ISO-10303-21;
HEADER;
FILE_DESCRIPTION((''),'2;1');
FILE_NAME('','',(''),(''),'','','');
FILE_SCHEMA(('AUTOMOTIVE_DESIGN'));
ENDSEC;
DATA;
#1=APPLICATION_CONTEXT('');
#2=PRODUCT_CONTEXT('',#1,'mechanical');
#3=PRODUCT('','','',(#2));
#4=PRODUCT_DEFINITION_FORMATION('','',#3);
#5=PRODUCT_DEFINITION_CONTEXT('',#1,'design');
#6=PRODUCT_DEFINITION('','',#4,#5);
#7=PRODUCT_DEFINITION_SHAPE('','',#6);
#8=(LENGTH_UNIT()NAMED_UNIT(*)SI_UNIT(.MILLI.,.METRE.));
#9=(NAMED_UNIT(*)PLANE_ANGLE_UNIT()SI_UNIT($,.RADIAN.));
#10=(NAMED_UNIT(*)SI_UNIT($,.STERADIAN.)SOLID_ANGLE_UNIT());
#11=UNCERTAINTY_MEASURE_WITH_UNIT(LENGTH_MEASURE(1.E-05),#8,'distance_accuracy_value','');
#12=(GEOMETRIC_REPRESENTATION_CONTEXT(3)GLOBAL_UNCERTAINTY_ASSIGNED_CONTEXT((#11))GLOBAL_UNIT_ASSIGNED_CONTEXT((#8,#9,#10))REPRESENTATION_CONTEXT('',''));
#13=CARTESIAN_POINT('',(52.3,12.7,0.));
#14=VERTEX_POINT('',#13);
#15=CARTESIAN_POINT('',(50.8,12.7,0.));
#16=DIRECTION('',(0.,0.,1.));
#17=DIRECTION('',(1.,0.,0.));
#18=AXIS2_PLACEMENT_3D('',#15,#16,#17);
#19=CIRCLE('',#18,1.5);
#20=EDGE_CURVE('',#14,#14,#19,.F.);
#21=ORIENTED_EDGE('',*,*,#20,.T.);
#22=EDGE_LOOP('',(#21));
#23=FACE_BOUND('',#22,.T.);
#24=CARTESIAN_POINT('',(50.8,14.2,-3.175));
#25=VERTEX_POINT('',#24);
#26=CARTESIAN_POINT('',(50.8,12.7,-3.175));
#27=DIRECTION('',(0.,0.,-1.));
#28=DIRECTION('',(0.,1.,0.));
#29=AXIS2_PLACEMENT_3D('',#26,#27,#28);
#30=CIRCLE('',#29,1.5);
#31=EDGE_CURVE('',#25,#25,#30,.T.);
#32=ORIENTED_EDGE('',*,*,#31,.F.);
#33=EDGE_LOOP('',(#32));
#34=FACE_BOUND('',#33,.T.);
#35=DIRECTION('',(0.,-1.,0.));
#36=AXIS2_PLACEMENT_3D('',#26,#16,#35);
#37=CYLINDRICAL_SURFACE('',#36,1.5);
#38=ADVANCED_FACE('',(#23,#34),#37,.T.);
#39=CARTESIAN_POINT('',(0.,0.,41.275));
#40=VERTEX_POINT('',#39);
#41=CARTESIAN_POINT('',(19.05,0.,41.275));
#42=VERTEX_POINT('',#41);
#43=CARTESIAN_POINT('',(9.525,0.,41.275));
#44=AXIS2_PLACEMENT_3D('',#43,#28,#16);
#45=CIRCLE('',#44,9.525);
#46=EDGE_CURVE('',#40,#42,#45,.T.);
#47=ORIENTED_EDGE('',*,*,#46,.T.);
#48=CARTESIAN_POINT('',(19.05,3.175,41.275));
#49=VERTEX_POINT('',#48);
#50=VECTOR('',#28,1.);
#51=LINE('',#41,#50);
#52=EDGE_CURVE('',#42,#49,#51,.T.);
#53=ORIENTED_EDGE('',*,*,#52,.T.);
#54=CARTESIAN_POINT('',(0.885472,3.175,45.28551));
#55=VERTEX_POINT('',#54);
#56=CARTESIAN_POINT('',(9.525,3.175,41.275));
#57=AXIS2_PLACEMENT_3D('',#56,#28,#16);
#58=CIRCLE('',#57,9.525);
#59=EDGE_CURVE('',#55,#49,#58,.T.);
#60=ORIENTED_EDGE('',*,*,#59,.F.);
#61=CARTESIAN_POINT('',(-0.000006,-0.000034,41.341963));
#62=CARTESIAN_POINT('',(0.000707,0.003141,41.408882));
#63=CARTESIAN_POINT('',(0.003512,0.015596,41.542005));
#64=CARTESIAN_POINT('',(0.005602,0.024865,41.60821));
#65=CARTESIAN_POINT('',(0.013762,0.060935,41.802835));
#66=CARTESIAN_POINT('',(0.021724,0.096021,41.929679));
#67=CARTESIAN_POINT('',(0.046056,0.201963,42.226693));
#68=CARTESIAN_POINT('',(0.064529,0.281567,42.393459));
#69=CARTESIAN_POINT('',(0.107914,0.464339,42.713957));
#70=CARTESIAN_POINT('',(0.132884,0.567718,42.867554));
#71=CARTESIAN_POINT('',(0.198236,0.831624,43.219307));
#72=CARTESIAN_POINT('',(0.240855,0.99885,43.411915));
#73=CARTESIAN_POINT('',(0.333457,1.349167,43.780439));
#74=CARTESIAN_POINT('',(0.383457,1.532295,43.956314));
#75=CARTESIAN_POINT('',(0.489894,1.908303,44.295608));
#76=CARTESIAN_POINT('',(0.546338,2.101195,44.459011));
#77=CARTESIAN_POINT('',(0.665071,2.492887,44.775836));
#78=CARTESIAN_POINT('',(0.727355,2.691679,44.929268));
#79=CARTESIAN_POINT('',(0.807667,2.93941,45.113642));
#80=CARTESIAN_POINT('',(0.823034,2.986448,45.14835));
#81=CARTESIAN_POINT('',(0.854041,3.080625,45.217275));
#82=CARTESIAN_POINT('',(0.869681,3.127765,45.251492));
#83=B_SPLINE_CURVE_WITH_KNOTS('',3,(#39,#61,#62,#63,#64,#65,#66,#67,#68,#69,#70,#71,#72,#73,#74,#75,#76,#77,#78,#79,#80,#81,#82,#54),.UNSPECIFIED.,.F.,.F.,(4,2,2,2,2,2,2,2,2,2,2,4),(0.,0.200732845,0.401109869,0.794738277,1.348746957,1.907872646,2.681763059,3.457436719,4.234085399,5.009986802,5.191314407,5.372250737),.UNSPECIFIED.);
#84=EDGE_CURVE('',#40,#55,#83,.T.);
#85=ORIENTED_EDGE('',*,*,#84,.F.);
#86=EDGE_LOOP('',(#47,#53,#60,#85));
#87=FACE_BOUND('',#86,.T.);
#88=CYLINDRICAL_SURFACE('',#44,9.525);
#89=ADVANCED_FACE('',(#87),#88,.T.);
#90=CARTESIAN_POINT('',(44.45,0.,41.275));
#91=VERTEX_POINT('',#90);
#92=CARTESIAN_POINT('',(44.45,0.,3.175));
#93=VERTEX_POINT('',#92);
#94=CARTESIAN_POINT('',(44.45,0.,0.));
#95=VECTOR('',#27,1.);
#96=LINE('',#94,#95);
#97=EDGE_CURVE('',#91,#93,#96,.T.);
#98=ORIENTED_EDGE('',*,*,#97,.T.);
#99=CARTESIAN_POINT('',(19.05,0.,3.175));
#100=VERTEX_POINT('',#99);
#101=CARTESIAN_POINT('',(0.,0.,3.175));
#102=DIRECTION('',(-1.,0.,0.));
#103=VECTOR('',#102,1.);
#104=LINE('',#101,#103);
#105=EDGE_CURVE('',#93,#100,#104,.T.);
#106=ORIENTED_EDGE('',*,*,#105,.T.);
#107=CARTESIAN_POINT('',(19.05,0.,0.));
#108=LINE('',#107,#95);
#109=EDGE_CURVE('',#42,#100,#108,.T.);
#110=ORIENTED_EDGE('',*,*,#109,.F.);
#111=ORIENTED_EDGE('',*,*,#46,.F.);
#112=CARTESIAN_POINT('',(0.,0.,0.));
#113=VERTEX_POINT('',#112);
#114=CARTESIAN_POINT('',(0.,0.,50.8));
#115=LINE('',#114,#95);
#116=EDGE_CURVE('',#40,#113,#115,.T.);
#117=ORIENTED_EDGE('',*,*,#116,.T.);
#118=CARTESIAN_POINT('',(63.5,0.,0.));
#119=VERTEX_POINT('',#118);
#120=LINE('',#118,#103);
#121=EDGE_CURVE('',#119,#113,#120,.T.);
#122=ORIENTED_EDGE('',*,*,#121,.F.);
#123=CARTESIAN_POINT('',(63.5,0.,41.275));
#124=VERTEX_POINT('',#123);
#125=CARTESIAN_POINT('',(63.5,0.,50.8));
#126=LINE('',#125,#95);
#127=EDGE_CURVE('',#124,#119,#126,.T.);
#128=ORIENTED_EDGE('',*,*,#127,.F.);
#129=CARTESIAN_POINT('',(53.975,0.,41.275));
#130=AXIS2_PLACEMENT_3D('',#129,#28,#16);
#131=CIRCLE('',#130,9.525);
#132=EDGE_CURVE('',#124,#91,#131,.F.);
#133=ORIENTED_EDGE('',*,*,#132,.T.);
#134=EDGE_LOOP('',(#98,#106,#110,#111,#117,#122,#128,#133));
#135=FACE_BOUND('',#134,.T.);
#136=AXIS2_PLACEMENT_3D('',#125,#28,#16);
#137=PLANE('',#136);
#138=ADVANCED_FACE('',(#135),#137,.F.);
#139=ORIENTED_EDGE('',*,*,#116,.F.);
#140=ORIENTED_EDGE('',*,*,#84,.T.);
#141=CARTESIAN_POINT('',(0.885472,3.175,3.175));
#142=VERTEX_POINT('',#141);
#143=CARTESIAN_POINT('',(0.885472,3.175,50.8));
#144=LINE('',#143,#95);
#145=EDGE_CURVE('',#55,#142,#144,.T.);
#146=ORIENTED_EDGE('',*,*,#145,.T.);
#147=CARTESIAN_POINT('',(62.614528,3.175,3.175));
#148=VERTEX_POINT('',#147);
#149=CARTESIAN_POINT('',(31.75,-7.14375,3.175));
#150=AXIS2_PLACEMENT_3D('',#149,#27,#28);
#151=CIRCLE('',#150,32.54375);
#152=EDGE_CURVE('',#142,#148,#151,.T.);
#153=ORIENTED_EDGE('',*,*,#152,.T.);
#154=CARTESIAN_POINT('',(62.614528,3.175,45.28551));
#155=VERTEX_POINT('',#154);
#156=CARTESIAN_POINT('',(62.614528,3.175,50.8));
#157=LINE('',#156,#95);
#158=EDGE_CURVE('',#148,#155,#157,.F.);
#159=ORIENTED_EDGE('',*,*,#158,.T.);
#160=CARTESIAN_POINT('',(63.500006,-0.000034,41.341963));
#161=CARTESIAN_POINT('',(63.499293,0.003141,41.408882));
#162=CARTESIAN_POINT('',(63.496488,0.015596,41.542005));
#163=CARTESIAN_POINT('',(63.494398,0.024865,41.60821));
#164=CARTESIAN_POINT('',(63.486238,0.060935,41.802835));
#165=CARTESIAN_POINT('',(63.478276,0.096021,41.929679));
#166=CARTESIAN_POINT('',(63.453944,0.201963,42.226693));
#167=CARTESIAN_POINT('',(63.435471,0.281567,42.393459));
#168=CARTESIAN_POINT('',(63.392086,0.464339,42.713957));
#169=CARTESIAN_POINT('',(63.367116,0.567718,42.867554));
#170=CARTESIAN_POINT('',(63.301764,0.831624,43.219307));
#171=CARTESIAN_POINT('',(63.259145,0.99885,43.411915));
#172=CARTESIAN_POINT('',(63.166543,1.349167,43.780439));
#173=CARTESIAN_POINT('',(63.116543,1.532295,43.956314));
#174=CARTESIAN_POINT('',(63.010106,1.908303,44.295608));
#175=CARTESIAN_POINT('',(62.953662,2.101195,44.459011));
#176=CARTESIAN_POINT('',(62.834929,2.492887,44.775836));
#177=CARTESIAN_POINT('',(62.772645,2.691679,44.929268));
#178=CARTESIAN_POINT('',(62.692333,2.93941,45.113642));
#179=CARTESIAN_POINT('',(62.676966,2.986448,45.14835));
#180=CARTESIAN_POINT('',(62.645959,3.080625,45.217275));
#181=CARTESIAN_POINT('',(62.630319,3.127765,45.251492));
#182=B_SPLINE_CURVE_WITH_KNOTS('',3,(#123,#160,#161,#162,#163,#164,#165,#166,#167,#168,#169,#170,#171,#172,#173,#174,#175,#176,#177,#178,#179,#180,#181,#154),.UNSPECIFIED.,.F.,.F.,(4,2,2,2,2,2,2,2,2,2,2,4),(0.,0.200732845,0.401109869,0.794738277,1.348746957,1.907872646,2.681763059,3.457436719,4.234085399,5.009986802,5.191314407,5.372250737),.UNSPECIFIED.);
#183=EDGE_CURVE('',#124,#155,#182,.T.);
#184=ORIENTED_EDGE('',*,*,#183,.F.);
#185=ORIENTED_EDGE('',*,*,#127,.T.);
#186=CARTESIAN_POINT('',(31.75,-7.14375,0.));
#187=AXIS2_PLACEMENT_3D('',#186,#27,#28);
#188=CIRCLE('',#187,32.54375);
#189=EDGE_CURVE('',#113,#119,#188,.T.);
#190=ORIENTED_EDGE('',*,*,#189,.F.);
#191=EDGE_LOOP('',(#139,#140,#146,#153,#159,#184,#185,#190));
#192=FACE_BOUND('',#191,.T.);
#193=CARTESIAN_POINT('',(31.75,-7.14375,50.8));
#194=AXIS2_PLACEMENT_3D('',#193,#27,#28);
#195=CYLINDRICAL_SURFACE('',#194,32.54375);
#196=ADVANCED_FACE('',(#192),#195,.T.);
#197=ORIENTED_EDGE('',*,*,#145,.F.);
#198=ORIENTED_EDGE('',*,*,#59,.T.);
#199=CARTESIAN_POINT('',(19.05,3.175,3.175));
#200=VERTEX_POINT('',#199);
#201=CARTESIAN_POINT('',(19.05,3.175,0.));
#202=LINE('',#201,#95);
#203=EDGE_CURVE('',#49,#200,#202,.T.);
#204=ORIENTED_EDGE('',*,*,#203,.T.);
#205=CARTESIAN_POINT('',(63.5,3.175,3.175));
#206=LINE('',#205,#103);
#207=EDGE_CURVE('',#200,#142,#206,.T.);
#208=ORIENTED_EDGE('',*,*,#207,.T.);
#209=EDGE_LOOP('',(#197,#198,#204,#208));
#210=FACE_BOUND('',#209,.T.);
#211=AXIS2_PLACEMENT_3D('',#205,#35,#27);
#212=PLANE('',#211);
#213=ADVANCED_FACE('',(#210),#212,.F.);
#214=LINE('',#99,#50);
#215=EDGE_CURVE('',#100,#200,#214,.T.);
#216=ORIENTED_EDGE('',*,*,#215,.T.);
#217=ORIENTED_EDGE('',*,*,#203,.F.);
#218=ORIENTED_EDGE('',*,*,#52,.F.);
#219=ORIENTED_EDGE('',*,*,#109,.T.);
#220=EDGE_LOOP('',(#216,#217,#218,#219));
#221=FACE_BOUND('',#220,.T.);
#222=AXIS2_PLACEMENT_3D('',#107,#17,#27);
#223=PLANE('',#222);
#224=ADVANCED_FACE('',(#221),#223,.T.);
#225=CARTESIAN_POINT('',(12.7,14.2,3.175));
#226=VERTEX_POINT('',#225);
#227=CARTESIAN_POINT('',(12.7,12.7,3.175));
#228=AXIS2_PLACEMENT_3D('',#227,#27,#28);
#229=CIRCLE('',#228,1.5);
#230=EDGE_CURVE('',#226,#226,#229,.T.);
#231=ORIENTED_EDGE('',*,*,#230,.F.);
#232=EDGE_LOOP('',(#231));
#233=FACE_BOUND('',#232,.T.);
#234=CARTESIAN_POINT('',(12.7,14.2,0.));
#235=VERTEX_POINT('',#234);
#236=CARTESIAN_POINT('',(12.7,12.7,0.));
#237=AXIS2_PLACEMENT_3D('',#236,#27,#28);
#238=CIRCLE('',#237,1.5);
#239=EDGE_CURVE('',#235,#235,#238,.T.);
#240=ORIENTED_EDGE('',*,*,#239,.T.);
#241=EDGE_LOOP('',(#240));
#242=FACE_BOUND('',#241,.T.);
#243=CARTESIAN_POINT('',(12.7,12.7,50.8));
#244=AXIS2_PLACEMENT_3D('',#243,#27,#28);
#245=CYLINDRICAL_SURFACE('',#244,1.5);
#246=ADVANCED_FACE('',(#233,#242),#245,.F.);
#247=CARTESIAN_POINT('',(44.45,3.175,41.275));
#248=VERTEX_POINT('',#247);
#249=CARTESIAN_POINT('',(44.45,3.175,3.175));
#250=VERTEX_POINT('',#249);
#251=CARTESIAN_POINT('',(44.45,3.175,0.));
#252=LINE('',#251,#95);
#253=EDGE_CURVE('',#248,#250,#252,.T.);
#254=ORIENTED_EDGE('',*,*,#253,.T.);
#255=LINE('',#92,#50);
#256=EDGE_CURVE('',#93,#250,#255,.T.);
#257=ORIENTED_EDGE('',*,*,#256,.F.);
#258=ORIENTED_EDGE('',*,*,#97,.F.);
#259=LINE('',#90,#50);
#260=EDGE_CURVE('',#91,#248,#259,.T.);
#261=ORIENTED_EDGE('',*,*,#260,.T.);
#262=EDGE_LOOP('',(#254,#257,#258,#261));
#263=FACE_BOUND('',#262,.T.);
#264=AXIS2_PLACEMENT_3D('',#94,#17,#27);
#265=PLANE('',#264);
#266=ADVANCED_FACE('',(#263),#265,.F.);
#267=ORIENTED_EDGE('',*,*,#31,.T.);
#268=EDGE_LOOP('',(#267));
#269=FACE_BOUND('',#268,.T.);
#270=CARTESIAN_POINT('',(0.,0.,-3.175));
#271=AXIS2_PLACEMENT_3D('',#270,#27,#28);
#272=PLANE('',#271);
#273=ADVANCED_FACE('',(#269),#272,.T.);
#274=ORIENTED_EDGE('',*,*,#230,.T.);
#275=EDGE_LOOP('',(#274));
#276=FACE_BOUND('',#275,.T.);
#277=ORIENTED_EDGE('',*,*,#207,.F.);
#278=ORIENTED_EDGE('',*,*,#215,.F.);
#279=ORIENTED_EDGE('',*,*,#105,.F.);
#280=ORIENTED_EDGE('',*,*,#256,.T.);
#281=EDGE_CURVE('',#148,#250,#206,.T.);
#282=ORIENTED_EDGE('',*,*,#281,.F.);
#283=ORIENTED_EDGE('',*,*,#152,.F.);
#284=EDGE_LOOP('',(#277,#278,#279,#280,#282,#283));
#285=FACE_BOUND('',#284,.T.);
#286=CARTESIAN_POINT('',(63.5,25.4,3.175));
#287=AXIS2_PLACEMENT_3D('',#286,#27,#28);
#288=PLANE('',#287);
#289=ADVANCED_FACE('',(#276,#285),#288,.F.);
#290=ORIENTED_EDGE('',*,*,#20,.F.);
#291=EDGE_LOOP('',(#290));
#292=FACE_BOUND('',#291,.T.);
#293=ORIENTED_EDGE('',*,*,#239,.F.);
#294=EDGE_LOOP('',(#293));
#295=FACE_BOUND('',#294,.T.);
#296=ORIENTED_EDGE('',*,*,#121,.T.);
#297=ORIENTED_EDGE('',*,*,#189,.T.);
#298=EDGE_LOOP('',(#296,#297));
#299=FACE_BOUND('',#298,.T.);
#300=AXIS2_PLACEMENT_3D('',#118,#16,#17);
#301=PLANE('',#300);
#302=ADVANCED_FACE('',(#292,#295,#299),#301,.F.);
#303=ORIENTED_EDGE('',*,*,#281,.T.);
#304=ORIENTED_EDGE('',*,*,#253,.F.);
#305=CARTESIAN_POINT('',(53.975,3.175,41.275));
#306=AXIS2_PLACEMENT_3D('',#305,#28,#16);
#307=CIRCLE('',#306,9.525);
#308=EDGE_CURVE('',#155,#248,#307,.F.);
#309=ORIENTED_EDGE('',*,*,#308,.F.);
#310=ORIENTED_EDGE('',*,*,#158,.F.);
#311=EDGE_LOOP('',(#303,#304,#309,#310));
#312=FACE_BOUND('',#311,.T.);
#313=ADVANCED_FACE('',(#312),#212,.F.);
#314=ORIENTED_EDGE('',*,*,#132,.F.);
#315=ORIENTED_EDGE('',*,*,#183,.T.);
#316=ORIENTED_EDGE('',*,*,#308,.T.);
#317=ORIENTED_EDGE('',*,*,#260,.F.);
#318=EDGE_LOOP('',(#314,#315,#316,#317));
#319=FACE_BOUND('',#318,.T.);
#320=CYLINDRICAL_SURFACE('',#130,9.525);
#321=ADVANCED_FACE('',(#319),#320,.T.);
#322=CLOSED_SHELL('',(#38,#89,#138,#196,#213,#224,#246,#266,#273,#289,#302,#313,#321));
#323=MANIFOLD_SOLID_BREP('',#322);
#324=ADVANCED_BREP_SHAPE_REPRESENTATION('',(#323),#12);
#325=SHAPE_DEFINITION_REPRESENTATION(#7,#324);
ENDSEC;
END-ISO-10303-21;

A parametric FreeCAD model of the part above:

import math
import FreeCAD as App
import Part
import Sketcher

V = App.Vector
Q = App.Units.Quantity


def add_polygon(sketch, points):
    """Adds a closed chain of lines whose ends are joined by coincident constraints."""
    first, n = sketch.GeometryCount, len(points)
    for a, b in zip(points, points[1:] + points[:1]):
        sketch.addGeometry(Part.LineSegment(App.Vector(*a, 0), App.Vector(*b, 0)), False)
    for i in range(n):
        sketch.addConstraint(Sketcher.Constraint("Coincident", first + i, 2, first + (i + 1) % n, 1))

doc = App.newDocument("Part")
body = doc.addObject("PartDesign::Body", "Body")

# Sketch on YZ plane
sketch1 = body.newObject("Sketcher::SketchObject", "Sketch")
sketch1.AttachmentSupport = (doc.getObject("YZ_Plane"), [""])
sketch1.MapMode = "FlatFace"
add_polygon(sketch1, [(0, 50.8), (0, 0), (25.4, 0), (25.4, 3.2), (3.2, 3.2), (3.2, 50.8)])  # lines 0-5
sketch1.addConstraint([
    Sketcher.Constraint("Vertical", 0),
    Sketcher.Constraint("Horizontal", 1),
    Sketcher.Constraint("Vertical", 2),
    Sketcher.Constraint("Horizontal", 3),
    Sketcher.Constraint("Vertical", 4),
    Sketcher.Constraint("Horizontal", 5),
    Sketcher.Constraint("Coincident", 0, 2, -1, 1),
    Sketcher.Constraint("Equal", 5, 2),
    Sketcher.Constraint("DistanceX", 1, 1, 1, 2, Q("1 in")),
    Sketcher.Constraint("DistanceY", 0, 2, 0, 1, Q("2 in")),
    Sketcher.Constraint("DistanceX", 3, 2, 3, 1, Q("0.875 in")),
])
pad1 = body.newObject("PartDesign::Pad", "Pad")
pad1.Profile = sketch1
pad1.Length = Q("2.5 in")

# Sketch on XY plane
sketch2 = body.newObject("Sketcher::SketchObject", "Sketch001")
sketch2.AttachmentSupport = (doc.getObject("XY_Plane"), [""])
sketch2.MapMode = "FlatFace"
sketch2.addGeometry(Part.Circle(V(12.7, 12.7, 0), V(0, 0, 1), 1.5), False)
sketch2.addConstraint([
    Sketcher.Constraint("DistanceX", -1, 1, 0, 3, Q("0.5 in")),
    Sketcher.Constraint("DistanceY", -1, 1, 0, 3, Q("0.5 in")),
    Sketcher.Constraint("Diameter", 0, 3.0),
])
pocket1 = body.newObject("PartDesign::Pocket", "Pocket")
pocket1.Profile = sketch2
pocket1.Type = "ThroughAll"
pocket1.Reversed = True

# Sketch on XY plane
sketch3 = body.newObject("Sketcher::SketchObject", "Sketch002")
sketch3.AttachmentSupport = (doc.getObject("XY_Plane"), [""])
sketch3.MapMode = "FlatFace"
sketch3.addGeometry(Part.Circle(V(50.8, 12.7, 0), V(0, 0, 1), 1.5), False)
sketch3.addConstraint([
    Sketcher.Constraint("DistanceX", -1, 1, 0, 3, Q("2 in")),
    Sketcher.Constraint("DistanceY", -1, 1, 0, 3, Q("0.5 in")),
    Sketcher.Constraint("Diameter", 0, 3.0),
])
pad2 = body.newObject("PartDesign::Pad", "Pad001")
pad2.Profile = sketch3
pad2.Length = Q("0.125 in")
pad2.Reversed = True

# Sketch on XY plane
sketch4 = body.newObject("Sketcher::SketchObject", "Sketch003")
sketch4.AttachmentSupport = (doc.getObject("XY_Plane"), [""])
sketch4.MapMode = "FlatFace"
sketch4.addGeometry([
    Part.LineSegment(V(64, 25, 0), V(64, 0, 0)),  # 0
    Part.ArcOfCircle(Part.Circle(V(32, -7, 0), V(0, 0, 1), 33), math.radians(13), math.radians(90)),  # 1
    Part.LineSegment(V(32, 25, 0), V(64, 25, 0)),  # 2
    Part.ArcOfCircle(Part.Circle(V(32, -7, 0), V(0, 0, 1), 33), math.radians(90), math.radians(167)),  # 3
    Part.LineSegment(V(0, 0, 0), V(0, 25, 0)),  # 4
    Part.LineSegment(V(0, 25, 0), V(32, 25, 0)),  # 5
], False)
sketch4.addConstraint([
    Sketcher.Constraint("Coincident", 0, 2, 1, 1),
    Sketcher.Constraint("Tangent", 1, 2, 2, 1),
    Sketcher.Constraint("Coincident", 2, 2, 0, 1),
    Sketcher.Constraint("Coincident", 3, 2, 4, 1),
    Sketcher.Constraint("Coincident", 4, 2, 5, 1),
    Sketcher.Constraint("Tangent", 5, 2, 3, 1),
    Sketcher.Constraint("Vertical", 0),
    Sketcher.Constraint("Horizontal", 2),
    Sketcher.Constraint("Vertical", 4),
    Sketcher.Constraint("Horizontal", 5),
    Sketcher.Constraint("Coincident", 3, 2, -1, 1),
    Sketcher.Constraint("Coincident", 3, 3, 1, 3),
    Sketcher.Constraint("Equal", 1, 3),
    Sketcher.Constraint("PointOnObject", 0, 2, -1),
    Sketcher.Constraint("DistanceY", 0, 2, 0, 1, Q("1 in")),
    Sketcher.Constraint("Radius", 1, Q("1.28125 in")),
])
pocket2 = body.newObject("PartDesign::Pocket", "Pocket001")
pocket2.Profile = sketch4
pocket2.Type = "ThroughAll"
pocket2.Reversed = True

# Sketch on XZ plane
sketch5 = body.newObject("Sketcher::SketchObject", "Sketch004")
sketch5.AttachmentSupport = (doc.getObject("XZ_Plane"), [""])
sketch5.MapMode = "FlatFace"
sketch5.AttachmentOffset = App.Placement(V(0, 0, -0.125 * 25.4), App.Rotation())
sketch5.addGeometry([
    Part.LineSegment(V(44.5, 3.2, 0), V(19.1, 3.2, 0)),  # 0
    Part.LineSegment(V(19.1, 3.2, 0), V(19.1, 41.3, 0)),  # 1
    Part.ArcOfCircle(Part.Circle(V(9.5, 41.3, 0), V(0, 0, 1), 9.5), math.radians(0), math.radians(90)),  # 2
    Part.LineSegment(V(9.5, 50.8, 0), V(54, 50.8, 0)),  # 3
    Part.ArcOfCircle(Part.Circle(V(54, 41.3, 0), V(0, 0, 1), 9.5), math.radians(90), math.radians(180)),  # 4
    Part.LineSegment(V(44.5, 41.3, 0), V(44.5, 3.2, 0)),  # 5
    Part.ArcOfCircle(Part.Circle(V(9.5, 41.3, 0), V(0, 0, 1), 9.5), math.radians(90), math.radians(155)),  # 6
    Part.ArcOfCircle(Part.Circle(V(9.5, 41.3, 0), V(0, 0, 1), 9.5), math.radians(155), math.radians(180)),  # 7
    Part.LineSegment(V(0, 41.3, 0), V(0, 50.8, 0)),  # 8
    Part.LineSegment(V(0, 50.8, 0), V(9.5, 50.8, 0)),  # 9
    Part.ArcOfCircle(Part.Circle(V(54, 41.3, 0), V(0, 0, 1), 9.5), math.radians(25), math.radians(90)),  # 10
    Part.LineSegment(V(54, 50.8, 0), V(63.5, 50.8, 0)),  # 11
    Part.LineSegment(V(63.5, 50.8, 0), V(63.5, 41.3, 0)),  # 12
    Part.ArcOfCircle(Part.Circle(V(54, 41.3, 0), V(0, 0, 1), 9.5), math.radians(0), math.radians(25)),  # 13
], False)
sketch5.addConstraint([
    Sketcher.Constraint("Coincident", 0, 2, 1, 1),
    Sketcher.Constraint("Tangent", 1, 2, 2, 1),
    Sketcher.Constraint("Tangent", 2, 2, 3, 1),
    Sketcher.Constraint("Tangent", 3, 2, 4, 1),
    Sketcher.Constraint("Tangent", 4, 2, 5, 1),
    Sketcher.Constraint("Coincident", 5, 2, 0, 1),
    Sketcher.Constraint("Tangent", 6, 2, 7, 1),
    Sketcher.Constraint("Tangent", 7, 2, 8, 1),
    Sketcher.Constraint("Coincident", 8, 2, 9, 1),
    Sketcher.Constraint("Tangent", 9, 2, 6, 1),
    Sketcher.Constraint("Tangent", 10, 2, 11, 1),
    Sketcher.Constraint("Coincident", 11, 2, 12, 1),
    Sketcher.Constraint("Tangent", 12, 2, 13, 1),
    Sketcher.Constraint("Tangent", 13, 2, 10, 1),
    Sketcher.Constraint("Horizontal", 0),
    Sketcher.Constraint("Vertical", 1),
    Sketcher.Constraint("Horizontal", 3),
    Sketcher.Constraint("Vertical", 5),
    Sketcher.Constraint("Vertical", 8),
    Sketcher.Constraint("Horizontal", 9),
    Sketcher.Constraint("Horizontal", 11),
    Sketcher.Constraint("Vertical", 12),
    Sketcher.Constraint("Coincident", 6, 3, 2, 3),
    Sketcher.Constraint("Coincident", 10, 3, 4, 3),
    Sketcher.Constraint("Equal", 2, 4),
    Sketcher.Constraint("Equal", 4, 6),
    Sketcher.Constraint("Equal", 6, 7),
    Sketcher.Constraint("Equal", 7, 10),
    Sketcher.Constraint("Equal", 10, 13),
    Sketcher.Constraint("PointOnObject", 7, 2, -2),
    Sketcher.Constraint("Horizontal", 6, 2, 13, 2),
    Sketcher.Constraint("DistanceX", 0, 2, 0, 1, Q("1 in")),
    Sketcher.Constraint("DistanceY", 1, 1, 1, 2, Q("1.5 in")),
    Sketcher.Constraint("DistanceY", -1, 1, 2, 2, Q("2 in")),
    Sketcher.Constraint("Radius", 2, Q("0.375 in")),
    Sketcher.Constraint("DistanceY", -1, 1, 6, 2, 45.28551),
])
pocket3 = body.newObject("PartDesign::Pocket", "Pocket002")
pocket3.Profile = sketch5
pocket3.Length = Q("0.125 in")
pocket3.Reversed = True

doc.recompute()
